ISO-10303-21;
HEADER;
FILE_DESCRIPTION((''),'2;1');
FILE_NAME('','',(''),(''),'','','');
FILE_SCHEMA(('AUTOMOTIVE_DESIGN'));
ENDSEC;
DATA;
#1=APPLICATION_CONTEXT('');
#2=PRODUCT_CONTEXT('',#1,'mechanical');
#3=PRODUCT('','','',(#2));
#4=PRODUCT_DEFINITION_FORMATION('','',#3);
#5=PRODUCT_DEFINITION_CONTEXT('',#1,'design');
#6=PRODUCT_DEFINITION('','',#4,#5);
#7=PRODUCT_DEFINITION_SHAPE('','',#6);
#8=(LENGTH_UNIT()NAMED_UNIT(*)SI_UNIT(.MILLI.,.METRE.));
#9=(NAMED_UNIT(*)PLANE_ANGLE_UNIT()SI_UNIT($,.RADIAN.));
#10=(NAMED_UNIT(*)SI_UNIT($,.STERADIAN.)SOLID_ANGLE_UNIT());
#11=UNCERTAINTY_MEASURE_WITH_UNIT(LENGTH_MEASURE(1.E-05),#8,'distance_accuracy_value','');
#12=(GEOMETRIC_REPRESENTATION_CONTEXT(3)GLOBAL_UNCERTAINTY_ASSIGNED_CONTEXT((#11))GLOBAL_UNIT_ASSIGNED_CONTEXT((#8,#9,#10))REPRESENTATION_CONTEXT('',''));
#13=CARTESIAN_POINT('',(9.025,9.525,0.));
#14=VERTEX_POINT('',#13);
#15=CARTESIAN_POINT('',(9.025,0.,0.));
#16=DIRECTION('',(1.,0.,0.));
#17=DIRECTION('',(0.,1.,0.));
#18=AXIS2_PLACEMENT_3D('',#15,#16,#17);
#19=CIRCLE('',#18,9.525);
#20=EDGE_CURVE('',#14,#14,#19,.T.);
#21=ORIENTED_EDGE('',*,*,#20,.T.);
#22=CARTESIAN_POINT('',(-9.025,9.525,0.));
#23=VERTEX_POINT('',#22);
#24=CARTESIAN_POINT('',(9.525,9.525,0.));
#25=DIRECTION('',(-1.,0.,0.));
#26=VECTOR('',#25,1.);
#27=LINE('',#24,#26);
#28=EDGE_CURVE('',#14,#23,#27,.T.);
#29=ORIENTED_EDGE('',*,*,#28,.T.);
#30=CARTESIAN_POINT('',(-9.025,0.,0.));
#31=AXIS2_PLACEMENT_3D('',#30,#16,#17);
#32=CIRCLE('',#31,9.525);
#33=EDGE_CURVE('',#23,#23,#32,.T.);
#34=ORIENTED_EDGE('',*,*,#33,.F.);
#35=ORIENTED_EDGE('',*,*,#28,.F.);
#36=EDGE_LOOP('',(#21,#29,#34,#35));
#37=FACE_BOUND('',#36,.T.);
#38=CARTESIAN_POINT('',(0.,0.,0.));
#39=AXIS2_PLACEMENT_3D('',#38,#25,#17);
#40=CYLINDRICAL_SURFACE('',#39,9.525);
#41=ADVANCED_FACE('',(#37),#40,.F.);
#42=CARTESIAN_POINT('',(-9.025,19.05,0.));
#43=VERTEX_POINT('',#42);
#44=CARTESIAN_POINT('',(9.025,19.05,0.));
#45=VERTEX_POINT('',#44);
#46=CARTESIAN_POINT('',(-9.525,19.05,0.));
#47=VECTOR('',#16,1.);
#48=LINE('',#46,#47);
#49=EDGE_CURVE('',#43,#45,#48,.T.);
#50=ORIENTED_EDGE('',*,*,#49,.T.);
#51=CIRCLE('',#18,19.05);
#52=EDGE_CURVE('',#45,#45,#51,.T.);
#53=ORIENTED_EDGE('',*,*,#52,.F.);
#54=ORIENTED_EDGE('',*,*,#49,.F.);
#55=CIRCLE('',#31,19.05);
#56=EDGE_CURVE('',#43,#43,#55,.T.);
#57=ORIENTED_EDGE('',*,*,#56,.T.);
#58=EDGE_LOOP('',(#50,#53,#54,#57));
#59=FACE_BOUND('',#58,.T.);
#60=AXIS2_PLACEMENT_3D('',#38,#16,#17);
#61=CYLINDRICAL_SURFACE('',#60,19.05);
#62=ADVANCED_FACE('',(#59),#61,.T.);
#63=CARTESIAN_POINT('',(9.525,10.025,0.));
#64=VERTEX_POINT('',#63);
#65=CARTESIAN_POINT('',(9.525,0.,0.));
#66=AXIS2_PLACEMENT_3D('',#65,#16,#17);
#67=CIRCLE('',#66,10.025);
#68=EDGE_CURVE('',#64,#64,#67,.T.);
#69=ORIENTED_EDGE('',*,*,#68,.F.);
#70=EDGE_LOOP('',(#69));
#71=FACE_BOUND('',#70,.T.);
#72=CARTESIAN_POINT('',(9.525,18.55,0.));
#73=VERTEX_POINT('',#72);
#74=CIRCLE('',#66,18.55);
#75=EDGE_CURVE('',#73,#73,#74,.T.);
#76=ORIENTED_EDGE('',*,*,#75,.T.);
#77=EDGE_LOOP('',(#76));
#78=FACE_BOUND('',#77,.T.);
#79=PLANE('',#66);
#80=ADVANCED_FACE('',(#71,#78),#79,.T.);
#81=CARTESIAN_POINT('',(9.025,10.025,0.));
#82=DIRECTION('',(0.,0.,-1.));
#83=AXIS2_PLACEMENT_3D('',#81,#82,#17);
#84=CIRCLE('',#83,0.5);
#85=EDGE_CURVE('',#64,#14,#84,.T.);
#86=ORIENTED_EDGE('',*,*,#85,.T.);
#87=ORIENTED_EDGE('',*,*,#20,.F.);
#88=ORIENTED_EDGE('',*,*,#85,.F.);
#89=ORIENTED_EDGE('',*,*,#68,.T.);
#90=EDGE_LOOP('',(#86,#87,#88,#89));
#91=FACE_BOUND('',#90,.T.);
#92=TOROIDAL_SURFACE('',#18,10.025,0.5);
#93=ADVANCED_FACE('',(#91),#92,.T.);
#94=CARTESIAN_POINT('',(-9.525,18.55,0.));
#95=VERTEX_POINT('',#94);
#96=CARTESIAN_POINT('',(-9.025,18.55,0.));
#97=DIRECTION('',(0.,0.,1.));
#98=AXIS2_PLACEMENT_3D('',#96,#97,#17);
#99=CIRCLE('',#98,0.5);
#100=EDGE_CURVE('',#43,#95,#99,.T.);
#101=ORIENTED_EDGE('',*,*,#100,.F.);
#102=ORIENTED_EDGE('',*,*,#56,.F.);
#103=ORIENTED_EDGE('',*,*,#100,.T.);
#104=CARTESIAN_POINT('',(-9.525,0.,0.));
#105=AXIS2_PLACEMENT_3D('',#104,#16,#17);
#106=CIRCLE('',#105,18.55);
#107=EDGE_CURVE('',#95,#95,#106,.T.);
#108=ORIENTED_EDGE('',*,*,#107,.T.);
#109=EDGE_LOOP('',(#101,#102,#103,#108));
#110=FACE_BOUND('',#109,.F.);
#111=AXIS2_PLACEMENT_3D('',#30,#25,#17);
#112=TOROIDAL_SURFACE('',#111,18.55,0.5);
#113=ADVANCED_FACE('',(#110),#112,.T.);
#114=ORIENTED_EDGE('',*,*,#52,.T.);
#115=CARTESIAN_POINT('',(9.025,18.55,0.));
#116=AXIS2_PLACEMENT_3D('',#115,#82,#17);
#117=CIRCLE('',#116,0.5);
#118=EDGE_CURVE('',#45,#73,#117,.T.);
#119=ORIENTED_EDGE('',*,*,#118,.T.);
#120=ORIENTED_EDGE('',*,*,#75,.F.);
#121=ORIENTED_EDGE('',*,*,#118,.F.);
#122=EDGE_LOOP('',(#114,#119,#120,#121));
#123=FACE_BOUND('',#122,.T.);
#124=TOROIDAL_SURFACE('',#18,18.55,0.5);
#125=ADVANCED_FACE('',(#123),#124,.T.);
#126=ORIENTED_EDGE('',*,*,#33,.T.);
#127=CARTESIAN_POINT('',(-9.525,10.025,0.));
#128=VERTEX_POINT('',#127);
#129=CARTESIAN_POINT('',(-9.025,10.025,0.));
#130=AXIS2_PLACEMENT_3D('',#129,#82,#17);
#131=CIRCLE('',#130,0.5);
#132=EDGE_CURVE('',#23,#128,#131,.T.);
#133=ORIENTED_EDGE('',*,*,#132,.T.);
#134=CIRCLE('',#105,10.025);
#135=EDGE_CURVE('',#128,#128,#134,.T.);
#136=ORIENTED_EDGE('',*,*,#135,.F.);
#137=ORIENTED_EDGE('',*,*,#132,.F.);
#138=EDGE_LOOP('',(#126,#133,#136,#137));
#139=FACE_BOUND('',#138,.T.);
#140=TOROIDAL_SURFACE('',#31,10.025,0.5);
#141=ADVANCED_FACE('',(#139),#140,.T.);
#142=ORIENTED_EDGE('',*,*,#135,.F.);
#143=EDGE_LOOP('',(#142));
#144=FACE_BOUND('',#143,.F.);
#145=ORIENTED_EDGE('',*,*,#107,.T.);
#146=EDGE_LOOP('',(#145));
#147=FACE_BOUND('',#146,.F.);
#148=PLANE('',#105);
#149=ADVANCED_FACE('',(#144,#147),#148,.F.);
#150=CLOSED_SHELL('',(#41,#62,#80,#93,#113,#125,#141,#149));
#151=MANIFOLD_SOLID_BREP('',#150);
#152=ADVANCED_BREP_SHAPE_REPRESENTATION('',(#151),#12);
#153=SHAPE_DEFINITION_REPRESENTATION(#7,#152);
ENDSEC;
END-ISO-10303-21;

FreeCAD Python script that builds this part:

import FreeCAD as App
import Part
import Sketcher
Q = App.Units.Quantity


def edges_at(feature, points):
    """Names of the edges that pass closest to the given points."""
    edges = feature.Shape.Edges
    near = lambda p: min(range(len(edges)), key=lambda i: edges[i].distToShape(Part.Vertex(*p))[0])
    return sorted({f"Edge{near(p) + 1}" for p in points})

doc = App.newDocument("Part")
params = doc.addObject("Spreadsheet::Sheet", "Params")
for row, (alias, value) in enumerate([
    ("sketch1_diameter", "1.5 in"),
    ("sketch1_diameter2", "0.75 in"),
    ("pad1_length", "0.75 in"),
    ("fillet_radius", "0.5 mm"),
], start=1):
    params.set(f"A{row}", alias)
    params.set(f"B{row}", "=" + value)
    params.setAlias(f"B{row}", alias)

body = doc.addObject("PartDesign::Body", "Body")

# Sketch on YZ plane
sketch1 = body.newObject("Sketcher::SketchObject", "Sketch")
sketch1.AttachmentSupport = (doc.getObject("YZ_Plane"), [""])
sketch1.MapMode = "FlatFace"
sketch1.addGeometry([
    Part.Circle(App.Vector(0, 0, 0), App.Vector(0, 0, 1), 19),
    Part.Circle(App.Vector(0, 0, 0), App.Vector(0, 0, 1), 10),
], False)
sketch1.addConstraint([
    Sketcher.Constraint("Coincident", 0, 3, -1, 1),
    Sketcher.Constraint("Coincident", 1, 3, -1, 1),
    Sketcher.Constraint("Diameter", 0, Q("1.5 in")),
    Sketcher.Constraint("Diameter", 1, Q("0.75 in")),
])
sketch1.setExpression("Constraints[2]", "Params.sketch1_diameter")
sketch1.setExpression("Constraints[3]", "Params.sketch1_diameter2")
pad1 = body.newObject("PartDesign::Pad", "Pad")
pad1.Profile = sketch1
pad1.setExpression("Length", "Params.pad1_length")
pad1.Midplane = True
doc.recompute()

fillet = body.newObject("PartDesign::Fillet", "Fillet")
fillet.Base = (pad1, edges_at(pad1, [
    (9.525, -19.05, 0),
    (9.525, -9.525, 0),
    (-9.525, -19.05, 0),
    (-9.525, -9.525, 0),
]))
fillet.setExpression("Radius", "Params.fillet_radius")

doc.recompute()
